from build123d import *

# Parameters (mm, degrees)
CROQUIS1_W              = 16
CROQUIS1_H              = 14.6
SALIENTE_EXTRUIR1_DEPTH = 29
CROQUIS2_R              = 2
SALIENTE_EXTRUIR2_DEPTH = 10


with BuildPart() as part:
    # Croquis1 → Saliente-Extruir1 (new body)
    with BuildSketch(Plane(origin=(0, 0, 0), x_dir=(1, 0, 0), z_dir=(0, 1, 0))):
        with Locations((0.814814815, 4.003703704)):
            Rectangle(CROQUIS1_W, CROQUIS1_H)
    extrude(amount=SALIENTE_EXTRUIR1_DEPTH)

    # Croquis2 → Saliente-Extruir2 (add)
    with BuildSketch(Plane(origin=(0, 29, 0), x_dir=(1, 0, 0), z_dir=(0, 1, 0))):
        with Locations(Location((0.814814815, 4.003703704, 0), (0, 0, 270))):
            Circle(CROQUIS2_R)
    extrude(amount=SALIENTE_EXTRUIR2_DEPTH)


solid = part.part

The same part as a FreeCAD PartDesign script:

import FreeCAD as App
import Part
import Sketcher

V = App.Vector
Q = App.Units.Quantity

doc = App.newDocument("Part")
body = doc.addObject("PartDesign::Body", "Body")

# Sketch on XZ plane
sketch1 = doc.addObject("Sketcher::SketchObject", "Sketch")
body.addObject(sketch1)
sketch1.AttachmentSupport = (doc.XZ_Plane, [""])
sketch1.MapMode = "FlatFace"
sketch1.addGeometry([
    Part.LineSegment(V(-7, -11, 0), V(-7, 3, 0)),
    Part.LineSegment(V(-7, 3, 0), V(9, 3, 0)),
    Part.LineSegment(V(9, 3, 0), V(9, -11, 0)),
    Part.LineSegment(V(9, -11, 0), V(-7, -11, 0)),
], False)
sketch1.addConstraint([
    Sketcher.Constraint("Coincident", 0, 2, 1, 1),
    Sketcher.Constraint("Coincident", 1, 2, 2, 1),
    Sketcher.Constraint("Coincident", 2, 2, 3, 1),
    Sketcher.Constraint("Coincident", 3, 2, 0, 1),
    Sketcher.Constraint("Vertical", 0),
    Sketcher.Constraint("Horizontal", 1),
    Sketcher.Constraint("Vertical", 2),
    Sketcher.Constraint("Horizontal", 3),
    Sketcher.Constraint("DistanceX", 1, 1, 1, 2, Q("16 mm")),
    Sketcher.Constraint("DistanceY", 0, 1, 0, 2, Q("14.6 mm")),
    Sketcher.Constraint("DistanceX", 0, 2, -1, 1, Q("7.185185 mm")),
    Sketcher.Constraint("DistanceY", -1, 1, 0, 2, Q("3.296296 mm")),
])
pad1 = doc.addObject("PartDesign::Pad", "Pad")
body.addObject(pad1)
pad1.Profile = sketch1
pad1.Length = 29
pad1.Reversed = True

# Sketch on XZ plane
sketch2 = doc.addObject("Sketcher::SketchObject", "Sketch001")
body.addObject(sketch2)
sketch2.AttachmentSupport = (doc.XZ_Plane, [""])
sketch2.MapMode = "FlatFace"
sketch2.AttachmentOffset = App.Placement(V(0, 0, -29), App.Rotation())
sketch2.addGeometry(Part.Circle(V(0.8, -4, 0), V(0, 0, 1), 2), False)
sketch2.addConstraint([
    Sketcher.Constraint("Diameter", 0, Q("4 mm")),
    Sketcher.Constraint("DistanceX", -1, 1, 0, 3, Q("0.814815 mm")),
    Sketcher.Constraint("DistanceY", 0, 3, -1, 1, Q("4.003704 mm")),
])
pad2 = doc.addObject("PartDesign::Pad", "Pad001")
body.addObject(pad2)
pad2.Profile = sketch2
pad2.Length = 10
pad2.Reversed = True

doc.recompute()
